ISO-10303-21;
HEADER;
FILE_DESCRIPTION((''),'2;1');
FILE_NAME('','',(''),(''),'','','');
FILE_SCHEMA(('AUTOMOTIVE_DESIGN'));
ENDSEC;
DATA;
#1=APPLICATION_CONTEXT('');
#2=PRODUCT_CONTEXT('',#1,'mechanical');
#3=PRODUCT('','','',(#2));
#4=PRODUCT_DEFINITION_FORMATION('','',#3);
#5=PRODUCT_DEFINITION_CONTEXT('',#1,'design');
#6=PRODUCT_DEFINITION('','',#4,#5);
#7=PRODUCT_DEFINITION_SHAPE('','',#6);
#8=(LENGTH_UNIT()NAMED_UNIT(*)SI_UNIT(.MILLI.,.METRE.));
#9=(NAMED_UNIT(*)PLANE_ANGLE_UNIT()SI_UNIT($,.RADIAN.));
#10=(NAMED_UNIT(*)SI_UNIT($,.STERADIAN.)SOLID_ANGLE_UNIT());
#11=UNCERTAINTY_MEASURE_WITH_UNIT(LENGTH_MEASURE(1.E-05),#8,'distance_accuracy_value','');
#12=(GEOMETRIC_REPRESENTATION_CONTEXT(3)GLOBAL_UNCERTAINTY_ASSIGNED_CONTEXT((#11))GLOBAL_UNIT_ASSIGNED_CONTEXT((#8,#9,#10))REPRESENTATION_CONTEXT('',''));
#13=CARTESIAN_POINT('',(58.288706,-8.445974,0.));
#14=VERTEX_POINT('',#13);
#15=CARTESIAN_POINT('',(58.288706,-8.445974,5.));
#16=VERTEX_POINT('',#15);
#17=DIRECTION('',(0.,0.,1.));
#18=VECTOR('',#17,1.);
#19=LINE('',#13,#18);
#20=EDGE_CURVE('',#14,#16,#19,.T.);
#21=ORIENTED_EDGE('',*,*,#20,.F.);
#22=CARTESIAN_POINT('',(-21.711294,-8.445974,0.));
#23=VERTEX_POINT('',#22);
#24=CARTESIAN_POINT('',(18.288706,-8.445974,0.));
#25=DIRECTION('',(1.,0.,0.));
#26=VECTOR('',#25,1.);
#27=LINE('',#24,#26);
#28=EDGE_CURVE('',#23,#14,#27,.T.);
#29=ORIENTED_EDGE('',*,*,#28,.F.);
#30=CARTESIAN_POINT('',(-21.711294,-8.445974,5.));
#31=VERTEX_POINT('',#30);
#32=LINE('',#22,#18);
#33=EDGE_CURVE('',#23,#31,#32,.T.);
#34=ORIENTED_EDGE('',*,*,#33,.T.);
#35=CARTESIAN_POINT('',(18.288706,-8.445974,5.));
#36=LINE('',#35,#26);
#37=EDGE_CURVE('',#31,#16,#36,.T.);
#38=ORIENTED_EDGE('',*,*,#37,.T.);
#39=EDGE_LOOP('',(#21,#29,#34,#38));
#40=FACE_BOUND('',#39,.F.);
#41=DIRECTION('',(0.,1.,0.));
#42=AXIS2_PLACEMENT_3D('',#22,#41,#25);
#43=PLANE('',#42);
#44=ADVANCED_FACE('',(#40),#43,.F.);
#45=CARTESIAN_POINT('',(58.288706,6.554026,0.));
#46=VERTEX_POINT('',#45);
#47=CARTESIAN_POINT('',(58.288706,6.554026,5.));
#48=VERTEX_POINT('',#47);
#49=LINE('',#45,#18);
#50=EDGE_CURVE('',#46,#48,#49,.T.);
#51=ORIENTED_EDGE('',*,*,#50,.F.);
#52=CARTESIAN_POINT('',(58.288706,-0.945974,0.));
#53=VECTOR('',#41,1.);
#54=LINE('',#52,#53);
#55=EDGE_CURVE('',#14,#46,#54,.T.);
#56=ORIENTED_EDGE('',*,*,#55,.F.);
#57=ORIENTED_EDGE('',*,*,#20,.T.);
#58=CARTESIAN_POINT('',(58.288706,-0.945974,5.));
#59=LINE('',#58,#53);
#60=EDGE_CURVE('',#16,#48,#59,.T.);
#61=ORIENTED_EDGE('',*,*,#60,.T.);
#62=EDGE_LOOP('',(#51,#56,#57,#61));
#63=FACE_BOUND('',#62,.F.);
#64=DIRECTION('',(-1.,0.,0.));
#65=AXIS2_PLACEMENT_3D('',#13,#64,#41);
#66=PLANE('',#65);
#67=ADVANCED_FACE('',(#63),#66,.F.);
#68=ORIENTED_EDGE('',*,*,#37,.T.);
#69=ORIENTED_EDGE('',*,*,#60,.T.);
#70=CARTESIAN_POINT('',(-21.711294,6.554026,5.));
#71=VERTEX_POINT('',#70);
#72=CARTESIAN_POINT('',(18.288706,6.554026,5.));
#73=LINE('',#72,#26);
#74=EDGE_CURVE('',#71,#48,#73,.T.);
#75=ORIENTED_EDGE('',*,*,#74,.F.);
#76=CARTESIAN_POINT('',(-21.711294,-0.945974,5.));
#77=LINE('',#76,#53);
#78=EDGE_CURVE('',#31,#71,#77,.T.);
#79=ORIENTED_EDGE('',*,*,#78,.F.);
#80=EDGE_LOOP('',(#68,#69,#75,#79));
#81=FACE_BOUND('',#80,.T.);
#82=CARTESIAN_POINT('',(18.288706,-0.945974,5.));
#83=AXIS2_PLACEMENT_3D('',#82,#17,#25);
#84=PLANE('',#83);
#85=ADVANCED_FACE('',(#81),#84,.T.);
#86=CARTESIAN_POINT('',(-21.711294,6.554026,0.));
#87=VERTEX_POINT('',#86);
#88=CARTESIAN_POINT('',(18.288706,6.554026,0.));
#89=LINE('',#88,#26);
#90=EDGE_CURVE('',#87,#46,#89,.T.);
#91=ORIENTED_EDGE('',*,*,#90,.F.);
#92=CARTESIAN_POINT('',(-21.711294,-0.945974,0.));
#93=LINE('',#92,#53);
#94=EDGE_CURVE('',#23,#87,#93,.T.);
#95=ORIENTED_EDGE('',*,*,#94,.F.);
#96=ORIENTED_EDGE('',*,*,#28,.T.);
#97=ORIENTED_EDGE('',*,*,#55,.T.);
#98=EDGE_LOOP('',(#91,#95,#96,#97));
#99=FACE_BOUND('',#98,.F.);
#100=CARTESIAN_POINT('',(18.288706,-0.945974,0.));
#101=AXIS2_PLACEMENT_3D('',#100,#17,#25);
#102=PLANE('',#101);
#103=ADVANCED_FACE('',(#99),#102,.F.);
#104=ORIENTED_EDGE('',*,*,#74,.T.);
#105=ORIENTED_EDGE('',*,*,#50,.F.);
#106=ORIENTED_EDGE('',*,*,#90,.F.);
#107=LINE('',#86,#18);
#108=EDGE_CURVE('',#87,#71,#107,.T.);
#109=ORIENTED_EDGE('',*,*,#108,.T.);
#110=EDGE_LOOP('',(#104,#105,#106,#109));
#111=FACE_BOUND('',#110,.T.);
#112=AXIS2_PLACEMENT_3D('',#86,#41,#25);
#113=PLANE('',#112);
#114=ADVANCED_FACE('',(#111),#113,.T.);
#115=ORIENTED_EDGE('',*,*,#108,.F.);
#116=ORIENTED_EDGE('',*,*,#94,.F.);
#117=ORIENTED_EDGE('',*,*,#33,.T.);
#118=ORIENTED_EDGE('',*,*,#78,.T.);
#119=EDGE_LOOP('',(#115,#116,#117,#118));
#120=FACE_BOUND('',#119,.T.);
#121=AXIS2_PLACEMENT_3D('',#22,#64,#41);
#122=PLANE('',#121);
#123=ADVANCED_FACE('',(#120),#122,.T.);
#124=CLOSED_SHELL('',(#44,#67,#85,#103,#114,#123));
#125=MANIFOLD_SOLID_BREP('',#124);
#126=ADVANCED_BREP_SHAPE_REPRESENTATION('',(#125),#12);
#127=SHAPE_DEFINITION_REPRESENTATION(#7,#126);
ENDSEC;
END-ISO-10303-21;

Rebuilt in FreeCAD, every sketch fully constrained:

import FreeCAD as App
import Part
import Sketcher

V = App.Vector

doc = App.newDocument("Part")
body = doc.addObject("PartDesign::Body", "Body")

# Sketch on XY plane
sketch1 = body.newObject("Sketcher::SketchObject", "Sketch")
sketch1.AttachmentSupport = (doc.getObject("XY_Plane"), [""])
sketch1.MapMode = "FlatFace"
sketch1.addGeometry([
    Part.LineSegment(V(-21.711294, 6.554026, 0), V(-21.711294, -8.445974, 0)),
    Part.LineSegment(V(-21.711294, -8.445974, 0), V(58.288706, -8.445974, 0)),
    Part.LineSegment(V(58.288706, -8.445974, 0), V(58.288706, 6.554026, 0)),
    Part.LineSegment(V(58.288706, 6.554026, 0), V(-21.711294, 6.554026, 0)),
], False)
sketch1.addConstraint([
    Sketcher.Constraint("Coincident", 0, 2, 1, 1),
    Sketcher.Constraint("Coincident", 1, 2, 2, 1),
    Sketcher.Constraint("Coincident", 2, 2, 3, 1),
    Sketcher.Constraint("Coincident", 3, 2, 0, 1),
    Sketcher.Constraint("Vertical", 0),
    Sketcher.Constraint("Horizontal", 1),
    Sketcher.Constraint("Vertical", 2),
    Sketcher.Constraint("Horizontal", 3),
    Sketcher.Constraint("DistanceX", 1, 1, 1, 2, 80.0),
    Sketcher.Constraint("DistanceY", 0, 2, 0, 1, 15.0),
    Sketcher.Constraint("DistanceX", 0, 2, -1, 1, 21.711294),
    Sketcher.Constraint("DistanceY", 0, 2, -1, 1, 8.445974),
])
pad1 = body.newObject("PartDesign::Pad", "Pad")
pad1.Profile = sketch1
pad1.Length = 5

doc.recompute()
